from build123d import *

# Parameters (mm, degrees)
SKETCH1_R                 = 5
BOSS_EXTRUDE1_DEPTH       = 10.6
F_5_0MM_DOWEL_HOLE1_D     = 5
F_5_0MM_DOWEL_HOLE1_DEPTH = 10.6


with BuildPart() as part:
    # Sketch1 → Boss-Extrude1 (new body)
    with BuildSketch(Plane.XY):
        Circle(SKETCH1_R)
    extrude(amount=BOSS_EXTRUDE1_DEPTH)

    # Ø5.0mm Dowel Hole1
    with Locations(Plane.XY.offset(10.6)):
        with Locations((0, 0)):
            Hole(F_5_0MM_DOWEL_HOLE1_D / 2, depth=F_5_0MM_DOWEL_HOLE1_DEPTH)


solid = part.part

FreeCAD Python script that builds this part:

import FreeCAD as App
import Part
import Sketcher
from FreeCAD import Vector
Q = App.Units.Quantity

doc = App.newDocument("Part")
body = doc.addObject("PartDesign::Body", "Body")

sketch1 = doc.addObject("Sketcher::SketchObject", "Sketch")
body.addObject(sketch1)
sketch1.AttachmentSupport = (doc.XY_Plane, [""])
sketch1.MapMode = "FlatFace"
sketch1.addGeometry(Part.Circle(Vector(0, 0, 0), Vector(0, 0, 1), 5), False)
sketch1.addConstraint([
    Sketcher.Constraint("Coincident", 0, 3, -1, 1),
    Sketcher.Constraint("Diameter", 0, Q("10 mm")),
])
pad1 = doc.addObject("PartDesign::Pad", "Pad")
body.addObject(pad1)
pad1.Profile = sketch1
pad1.Length = 10.6

sketch2 = doc.addObject("Sketcher::SketchObject", "Sketch001")
body.addObject(sketch2)
sketch2.AttachmentSupport = (doc.XY_Plane, [""])
sketch2.MapMode = "FlatFace"
sketch2.AttachmentOffset = App.Placement(Vector(0, 0, 10.6), App.Rotation())
sketch2.addGeometry(Part.Circle(Vector(0, 0, 0), Vector(0, 0, 1), 2.5), False)
sketch2.addConstraint([
    Sketcher.Constraint("Coincident", 0, 3, -1, 1),
    Sketcher.Constraint("Diameter", 0, Q("5 mm")),
])
doc.recompute()
hole = doc.addObject("PartDesign::Hole", "Hole")
body.addObject(hole)
hole.Profile = sketch2
hole.ThreadType = "None"
hole.Diameter = 5
hole.DepthType = "Dimension"
hole.Depth = 10.6
hole.DrillPoint = "Flat"

doc.recompute()
